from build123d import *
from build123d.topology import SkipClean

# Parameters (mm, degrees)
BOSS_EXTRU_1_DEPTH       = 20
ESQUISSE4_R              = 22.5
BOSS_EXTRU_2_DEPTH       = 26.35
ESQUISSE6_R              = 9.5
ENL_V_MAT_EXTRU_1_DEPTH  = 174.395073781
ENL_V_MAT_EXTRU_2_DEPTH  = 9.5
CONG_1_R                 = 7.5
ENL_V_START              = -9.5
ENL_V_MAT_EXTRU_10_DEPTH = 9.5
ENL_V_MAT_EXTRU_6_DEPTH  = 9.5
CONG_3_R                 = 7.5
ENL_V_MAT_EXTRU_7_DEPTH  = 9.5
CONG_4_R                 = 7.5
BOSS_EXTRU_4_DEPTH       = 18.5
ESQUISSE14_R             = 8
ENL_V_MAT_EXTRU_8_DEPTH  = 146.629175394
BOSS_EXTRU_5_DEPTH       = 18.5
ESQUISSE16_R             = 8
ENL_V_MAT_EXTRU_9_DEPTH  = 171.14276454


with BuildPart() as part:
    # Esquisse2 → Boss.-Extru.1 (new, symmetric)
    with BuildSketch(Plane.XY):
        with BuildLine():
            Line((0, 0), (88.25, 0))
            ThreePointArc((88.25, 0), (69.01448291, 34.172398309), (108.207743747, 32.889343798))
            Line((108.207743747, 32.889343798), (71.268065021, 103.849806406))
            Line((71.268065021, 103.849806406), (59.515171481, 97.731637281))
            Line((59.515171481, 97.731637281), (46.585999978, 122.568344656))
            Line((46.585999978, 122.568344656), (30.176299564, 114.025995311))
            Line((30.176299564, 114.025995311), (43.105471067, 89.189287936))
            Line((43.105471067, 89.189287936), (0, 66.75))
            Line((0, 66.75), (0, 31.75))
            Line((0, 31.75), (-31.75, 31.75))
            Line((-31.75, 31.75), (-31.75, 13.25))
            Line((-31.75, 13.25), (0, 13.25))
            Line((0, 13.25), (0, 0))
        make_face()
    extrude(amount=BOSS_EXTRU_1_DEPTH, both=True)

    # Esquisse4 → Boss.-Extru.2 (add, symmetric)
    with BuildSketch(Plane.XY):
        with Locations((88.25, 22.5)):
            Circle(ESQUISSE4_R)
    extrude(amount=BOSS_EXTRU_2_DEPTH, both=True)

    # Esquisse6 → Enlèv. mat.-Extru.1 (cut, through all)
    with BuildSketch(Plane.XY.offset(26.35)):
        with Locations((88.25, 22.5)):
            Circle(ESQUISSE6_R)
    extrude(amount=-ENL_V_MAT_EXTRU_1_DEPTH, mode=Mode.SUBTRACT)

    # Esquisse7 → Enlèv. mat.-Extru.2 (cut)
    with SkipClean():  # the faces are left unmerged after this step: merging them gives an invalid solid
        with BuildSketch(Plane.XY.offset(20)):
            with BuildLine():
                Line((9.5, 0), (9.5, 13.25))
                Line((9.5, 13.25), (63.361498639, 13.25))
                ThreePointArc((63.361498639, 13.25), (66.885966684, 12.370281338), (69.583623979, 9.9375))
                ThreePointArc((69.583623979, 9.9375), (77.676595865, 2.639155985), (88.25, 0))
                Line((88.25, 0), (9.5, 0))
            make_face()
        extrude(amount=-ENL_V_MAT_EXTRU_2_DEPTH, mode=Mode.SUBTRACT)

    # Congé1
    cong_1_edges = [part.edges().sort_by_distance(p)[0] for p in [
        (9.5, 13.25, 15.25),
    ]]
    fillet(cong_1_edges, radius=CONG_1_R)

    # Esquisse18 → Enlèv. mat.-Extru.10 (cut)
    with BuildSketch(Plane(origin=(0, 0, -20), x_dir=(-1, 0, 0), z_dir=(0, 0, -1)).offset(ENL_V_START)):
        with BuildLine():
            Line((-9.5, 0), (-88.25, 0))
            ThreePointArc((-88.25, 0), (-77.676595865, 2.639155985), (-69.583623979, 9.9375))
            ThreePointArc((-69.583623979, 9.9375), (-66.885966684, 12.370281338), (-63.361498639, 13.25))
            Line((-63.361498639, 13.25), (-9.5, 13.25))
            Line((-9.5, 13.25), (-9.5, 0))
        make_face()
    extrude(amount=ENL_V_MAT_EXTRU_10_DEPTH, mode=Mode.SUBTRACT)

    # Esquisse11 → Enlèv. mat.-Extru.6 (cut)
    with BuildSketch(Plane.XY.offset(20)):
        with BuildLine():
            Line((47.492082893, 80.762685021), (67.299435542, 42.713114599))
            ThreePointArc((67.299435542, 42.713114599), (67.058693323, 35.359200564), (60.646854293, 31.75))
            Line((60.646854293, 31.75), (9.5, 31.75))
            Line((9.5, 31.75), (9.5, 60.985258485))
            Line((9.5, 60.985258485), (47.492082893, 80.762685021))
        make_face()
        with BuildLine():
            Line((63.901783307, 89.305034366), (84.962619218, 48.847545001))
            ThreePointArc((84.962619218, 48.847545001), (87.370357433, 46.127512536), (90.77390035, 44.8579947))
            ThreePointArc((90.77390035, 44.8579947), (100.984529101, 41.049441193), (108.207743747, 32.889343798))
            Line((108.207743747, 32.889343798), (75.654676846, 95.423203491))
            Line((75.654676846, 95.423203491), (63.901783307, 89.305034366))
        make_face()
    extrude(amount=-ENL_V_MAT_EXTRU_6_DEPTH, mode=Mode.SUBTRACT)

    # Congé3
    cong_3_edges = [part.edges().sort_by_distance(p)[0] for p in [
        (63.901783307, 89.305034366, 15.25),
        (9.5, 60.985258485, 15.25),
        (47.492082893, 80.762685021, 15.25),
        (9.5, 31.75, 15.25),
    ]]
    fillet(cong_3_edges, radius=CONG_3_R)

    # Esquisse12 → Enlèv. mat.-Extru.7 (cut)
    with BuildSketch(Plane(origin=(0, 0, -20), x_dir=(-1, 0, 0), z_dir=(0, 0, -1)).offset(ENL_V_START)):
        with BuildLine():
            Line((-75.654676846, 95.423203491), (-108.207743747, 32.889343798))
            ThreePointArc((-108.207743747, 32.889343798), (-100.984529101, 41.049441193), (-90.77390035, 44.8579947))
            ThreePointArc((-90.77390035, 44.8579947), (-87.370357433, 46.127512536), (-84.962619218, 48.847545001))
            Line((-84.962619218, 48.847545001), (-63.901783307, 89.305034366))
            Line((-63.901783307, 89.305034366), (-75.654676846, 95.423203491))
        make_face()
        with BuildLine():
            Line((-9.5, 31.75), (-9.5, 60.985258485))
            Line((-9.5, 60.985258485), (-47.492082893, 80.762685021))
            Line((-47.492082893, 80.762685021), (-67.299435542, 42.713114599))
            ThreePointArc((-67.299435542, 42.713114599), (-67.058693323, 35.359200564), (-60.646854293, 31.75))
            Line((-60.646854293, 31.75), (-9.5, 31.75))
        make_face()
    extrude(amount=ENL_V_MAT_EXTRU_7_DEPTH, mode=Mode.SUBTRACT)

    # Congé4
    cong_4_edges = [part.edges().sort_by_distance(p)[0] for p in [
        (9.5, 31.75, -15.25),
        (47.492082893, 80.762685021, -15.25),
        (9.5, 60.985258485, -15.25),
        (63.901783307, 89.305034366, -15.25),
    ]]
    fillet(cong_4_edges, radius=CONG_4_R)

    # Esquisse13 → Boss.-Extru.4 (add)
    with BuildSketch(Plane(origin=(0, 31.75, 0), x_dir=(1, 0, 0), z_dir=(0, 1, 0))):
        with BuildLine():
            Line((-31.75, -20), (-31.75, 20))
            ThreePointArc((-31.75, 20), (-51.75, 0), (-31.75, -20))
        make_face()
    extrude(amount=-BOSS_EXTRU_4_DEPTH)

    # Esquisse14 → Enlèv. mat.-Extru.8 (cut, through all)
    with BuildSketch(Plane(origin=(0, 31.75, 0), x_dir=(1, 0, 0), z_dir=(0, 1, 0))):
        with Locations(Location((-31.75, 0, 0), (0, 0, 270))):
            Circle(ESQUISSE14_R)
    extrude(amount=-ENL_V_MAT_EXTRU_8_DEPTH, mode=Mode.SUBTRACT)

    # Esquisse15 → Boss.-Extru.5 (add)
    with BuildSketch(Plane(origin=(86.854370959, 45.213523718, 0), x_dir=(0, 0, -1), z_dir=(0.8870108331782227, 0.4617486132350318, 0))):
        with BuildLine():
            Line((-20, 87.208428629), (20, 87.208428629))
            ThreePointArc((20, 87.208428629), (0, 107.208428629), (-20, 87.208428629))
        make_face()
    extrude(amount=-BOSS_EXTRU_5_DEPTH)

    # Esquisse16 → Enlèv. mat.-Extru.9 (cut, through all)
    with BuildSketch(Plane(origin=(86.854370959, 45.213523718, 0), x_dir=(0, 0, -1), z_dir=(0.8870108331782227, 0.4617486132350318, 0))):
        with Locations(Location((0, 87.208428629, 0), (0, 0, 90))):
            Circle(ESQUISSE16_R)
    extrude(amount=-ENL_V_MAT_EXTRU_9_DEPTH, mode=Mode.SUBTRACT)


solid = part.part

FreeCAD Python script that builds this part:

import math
import FreeCAD as App
import Part
import Sketcher
from FreeCAD import Vector
Q = App.Units.Quantity


def edges_at(feature, points):
    """Names of the edges that pass closest to the given points."""
    edges = feature.Shape.Edges
    near = lambda p: min(range(len(edges)), key=lambda i: edges[i].distToShape(Part.Vertex(*p))[0])
    return sorted({f"Edge{near(p) + 1}" for p in points})

doc = App.newDocument("Part")
body = doc.addObject("PartDesign::Body", "Body")

sketch1 = body.newObject("Sketcher::SketchObject", "Sketch")
sketch1.AttachmentSupport = (doc.getObject("XY_Plane"), [""])
sketch1.MapMode = "FlatFace"
sketch1.addGeometry(Part.LineSegment(Vector(0, 0, 0), Vector(88, 0, 0)), False)
sketch1.addGeometry(Part.ArcOfCircle(Part.Circle(Vector(88, 22, 0), Vector(0, 0, 1), 22), math.radians(27), math.radians(270)), False)
sketch1.addGeometry(Part.LineSegment(Vector(108, 33, 0), Vector(71, 104, 0)), False)
sketch1.addGeometry(Part.LineSegment(Vector(71, 104, 0), Vector(60, 98, 0)), False)
sketch1.addGeometry(Part.LineSegment(Vector(60, 98, 0), Vector(47, 123, 0)), False)
sketch1.addGeometry(Part.LineSegment(Vector(47, 123, 0), Vector(30, 114, 0)), False)
sketch1.addGeometry(Part.LineSegment(Vector(30, 114, 0), Vector(43, 89, 0)), False)
sketch1.addGeometry(Part.LineSegment(Vector(43, 89, 0), Vector(0, 67, 0)), False)
sketch1.addGeometry(Part.LineSegment(Vector(0, 67, 0), Vector(0, 32, 0)), False)
sketch1.addGeometry(Part.LineSegment(Vector(0, 32, 0), Vector(-32, 32, 0)), False)
sketch1.addGeometry(Part.LineSegment(Vector(-32, 32, 0), Vector(-32, 13, 0)), False)
sketch1.addGeometry(Part.LineSegment(Vector(-32, 13, 0), Vector(0, 13, 0)), False)
sketch1.addGeometry(Part.LineSegment(Vector(0, 13, 0), Vector(0, 0, 0)), False)
sketch1.addConstraint(Sketcher.Constraint("Tangent", 0, 2, 1, 2))
sketch1.addConstraint(Sketcher.Constraint("Tangent", 1, 1, 2, 1))
sketch1.addConstraint(Sketcher.Constraint("Coincident", 2, 2, 3, 1))
sketch1.addConstraint(Sketcher.Constraint("Coincident", 3, 2, 4, 1))
sketch1.addConstraint(Sketcher.Constraint("Coincident", 4, 2, 5, 1))
sketch1.addConstraint(Sketcher.Constraint("Coincident", 5, 2, 6, 1))
sketch1.addConstraint(Sketcher.Constraint("Coincident", 6, 2, 7, 1))
sketch1.addConstraint(Sketcher.Constraint("Coincident", 7, 2, 8, 1))
sketch1.addConstraint(Sketcher.Constraint("Coincident", 8, 2, 9, 1))
sketch1.addConstraint(Sketcher.Constraint("Coincident", 9, 2, 10, 1))
sketch1.addConstraint(Sketcher.Constraint("Coincident", 10, 2, 11, 1))
sketch1.addConstraint(Sketcher.Constraint("Coincident", 11, 2, 12, 1))
sketch1.addConstraint(Sketcher.Constraint("Coincident", 12, 2, 0, 1))
sketch1.addConstraint(Sketcher.Constraint("Horizontal", 0))
sketch1.addConstraint(Sketcher.Constraint("Vertical", 8))
sketch1.addConstraint(Sketcher.Constraint("Horizontal", 9))
sketch1.addConstraint(Sketcher.Constraint("Vertical", 10))
sketch1.addConstraint(Sketcher.Constraint("Horizontal", 11))
sketch1.addConstraint(Sketcher.Constraint("Vertical", 12))
sketch1.addConstraint(Sketcher.Constraint("Coincident", 12, 2, -1, 1))
sketch1.addConstraint(Sketcher.Constraint("PointOnObject", 7, 2, -2))
sketch1.addConstraint(Sketcher.Constraint("Perpendicular", 2, 3))
sketch1.addConstraint(Sketcher.Constraint("Perpendicular", 3, 4))
sketch1.addConstraint(Sketcher.Constraint("Perpendicular", 4, 5))
sketch1.addConstraint(Sketcher.Constraint("Perpendicular", 5, 6))
sketch1.addConstraint(Sketcher.Constraint("Perpendicular", 6, 7))
sketch1.addConstraint(Sketcher.Constraint("Equal", 4, 6))
sketch1.addConstraint(Sketcher.Constraint("Radius", 1, Q("22.5 mm")))
sketch1.addConstraint(Sketcher.Constraint("DistanceY", 8, 2, 8, 1, Q("35 mm")))
sketch1.addConstraint(Sketcher.Constraint("DistanceY", 10, 2, 10, 1, Q("18.5 mm")))
sketch1.addConstraint(Sketcher.Constraint("Angle", 2, Q("117.5 deg")))
sketch1.addConstraint(Sketcher.Constraint("Distance", 5, Q("18.5 mm")))
sketch1.addConstraint(Sketcher.Constraint("DistanceX", 0, 1, 0, 2, Q("88.25 mm")))
sketch1.addConstraint(Sketcher.Constraint("DistanceX", 9, 2, 9, 1, Q("31.75 mm")))
sketch1.addConstraint(Sketcher.Constraint("DistanceY", 12, 2, 12, 1, Q("13.25 mm")))
sketch1.addConstraint(Sketcher.Constraint("Distance", 3, Q("13.25 mm")))
sketch1.addConstraint(Sketcher.Constraint("DistanceX", -1, 1, 4, 2, Q("46.586 mm")))
pad1 = body.newObject("PartDesign::Pad", "Pad")
pad1.Profile = sketch1
pad1.Length = 40
pad1.Midplane = True

sketch2 = body.newObject("Sketcher::SketchObject", "Sketch001")
sketch2.AttachmentSupport = (doc.getObject("XY_Plane"), [""])
sketch2.MapMode = "FlatFace"
sketch2.addGeometry(Part.Circle(Vector(88, 22, 0), Vector(0, 0, 1), 22), False)
sketch2.addConstraint(Sketcher.Constraint("Diameter", 0, Q("45 mm")))
sketch2.addConstraint(Sketcher.Constraint("DistanceY", -1, 1, 0, 3, Q("22.5 mm")))
sketch2.addConstraint(Sketcher.Constraint("DistanceX", -1, 1, 0, 3, Q("88.25 mm")))
pad2 = body.newObject("PartDesign::Pad", "Pad001")
pad2.Profile = sketch2
pad2.Length = 52.7
pad2.Midplane = True

sketch3 = body.newObject("Sketcher::SketchObject", "Sketch002")
sketch3.AttachmentSupport = (doc.getObject("XY_Plane"), [""])
sketch3.MapMode = "FlatFace"
sketch3.AttachmentOffset = App.Placement(Vector(0, 0, 26.35), App.Rotation())
sketch3.addGeometry(Part.Circle(Vector(88, 22, 0), Vector(0, 0, 1), 10), False)
sketch3.addConstraint(Sketcher.Constraint("Diameter", 0, Q("19 mm")))
sketch3.addConstraint(Sketcher.Constraint("DistanceY", -1, 1, 0, 3, Q("22.5 mm")))
sketch3.addConstraint(Sketcher.Constraint("DistanceX", -1, 1, 0, 3, Q("88.25 mm")))
pocket1 = body.newObject("PartDesign::Pocket", "Pocket")
pocket1.Profile = sketch3
pocket1.Type = "ThroughAll"

sketch4 = body.newObject("Sketcher::SketchObject", "Sketch003")
sketch4.AttachmentSupport = (doc.getObject("XY_Plane"), [""])
sketch4.MapMode = "FlatFace"
sketch4.AttachmentOffset = App.Placement(Vector(0, 0, 20), App.Rotation())
sketch4.addGeometry(Part.LineSegment(Vector(10, 13, 0), Vector(10, 0, 0)), False)
sketch4.addGeometry(Part.LineSegment(Vector(10, 0, 0), Vector(88, 0, 0)), False)
sketch4.addGeometry(Part.ArcOfCircle(Part.Circle(Vector(88, 23, 0), Vector(0, 0, 1), 23), math.radians(-146), math.radians(-90)), False)
sketch4.addGeometry(Part.ArcOfCircle(Part.Circle(Vector(63, 6, 0), Vector(0, 0, 1), 8), math.radians(34), math.radians(90)), False)
sketch4.addGeometry(Part.LineSegment(Vector(63, 13, 0), Vector(10, 13, 0)), False)
sketch4.addConstraint(Sketcher.Constraint("Coincident", 0, 2, 1, 1))
sketch4.addConstraint(Sketcher.Constraint("Tangent", 1, 2, 2, 2))
sketch4.addConstraint(Sketcher.Constraint("Tangent", 2, 1, 3, 1))
sketch4.addConstraint(Sketcher.Constraint("Tangent", 3, 2, 4, 1))
sketch4.addConstraint(Sketcher.Constraint("Coincident", 4, 2, 0, 1))
sketch4.addConstraint(Sketcher.Constraint("Vertical", 0))
sketch4.addConstraint(Sketcher.Constraint("Horizontal", 1))
sketch4.addConstraint(Sketcher.Constraint("Horizontal", 4))
sketch4.addConstraint(Sketcher.Constraint("PointOnObject", 0, 2, -1))
sketch4.addConstraint(Sketcher.Constraint("Radius", 2, Q("22.5 mm")))
sketch4.addConstraint(Sketcher.Constraint("Radius", 3, Q("7.5 mm")))
sketch4.addConstraint(Sketcher.Constraint("DistanceX", 1, 1, 1, 2, Q("78.75 mm")))
sketch4.addConstraint(Sketcher.Constraint("DistanceY", 0, 2, 0, 1, Q("13.25 mm")))
sketch4.addConstraint(Sketcher.Constraint("DistanceX", -1, 1, 0, 2, Q("9.5 mm")))
pocket2 = body.newObject("PartDesign::Pocket", "Pocket001")
pocket2.Profile = sketch4
pocket2.Length = 9.5
doc.recompute()

fillet = body.newObject("PartDesign::Fillet", "Fillet")
fillet.Base = (pocket2, edges_at(pocket2, [(9.5, 13.25, 15.25)]))
fillet.Radius = 7.5

sketch5 = body.newObject("Sketcher::SketchObject", "Sketch004")
sketch5.AttachmentSupport = (doc.getObject("XY_Plane"), [""])
sketch5.MapMode = "FlatFace"
sketch5.AttachmentOffset = App.Placement(Vector(0, 0, -10.5), App.Rotation())
sketch5.addGeometry(Part.LineSegment(Vector(88, 0, 0), Vector(10, 0, 0)), False)
sketch5.addGeometry(Part.LineSegment(Vector(10, 0, 0), Vector(10, 13, 0)), False)
sketch5.addGeometry(Part.LineSegment(Vector(10, 13, 0), Vector(63, 13, 0)), False)
sketch5.addGeometry(Part.ArcOfCircle(Part.Circle(Vector(63, 6, 0), Vector(0, 0, 1), 8), math.radians(34), math.radians(90)), False)
sketch5.addGeometry(Part.ArcOfCircle(Part.Circle(Vector(88, 23, 0), Vector(0, 0, 1), 23), math.radians(-146), math.radians(-90)), False)
sketch5.addConstraint(Sketcher.Constraint("Coincident", 0, 2, 1, 1))
sketch5.addConstraint(Sketcher.Constraint("Coincident", 1, 2, 2, 1))
sketch5.addConstraint(Sketcher.Constraint("Tangent", 2, 2, 3, 2))
sketch5.addConstraint(Sketcher.Constraint("Tangent", 3, 1, 4, 1))
sketch5.addConstraint(Sketcher.Constraint("Tangent", 4, 2, 0, 1))
sketch5.addConstraint(Sketcher.Constraint("Horizontal", 0))
sketch5.addConstraint(Sketcher.Constraint("Vertical", 1))
sketch5.addConstraint(Sketcher.Constraint("Horizontal", 2))
sketch5.addConstraint(Sketcher.Constraint("PointOnObject", 0, 2, -1))
sketch5.addConstraint(Sketcher.Constraint("Radius", 3, Q("7.5 mm")))
sketch5.addConstraint(Sketcher.Constraint("Radius", 4, Q("22.5 mm")))
sketch5.addConstraint(Sketcher.Constraint("DistanceX", 0, 2, 0, 1, Q("78.75 mm")))
sketch5.addConstraint(Sketcher.Constraint("DistanceY", 1, 1, 1, 2, Q("13.25 mm")))
sketch5.addConstraint(Sketcher.Constraint("DistanceX", -1, 1, 0, 2, Q("9.5 mm")))
pocket3 = body.newObject("PartDesign::Pocket", "Pocket002")
pocket3.Profile = sketch5
pocket3.Length = 9.5

sketch6 = body.newObject("Sketcher::SketchObject", "Sketch005")
sketch6.AttachmentSupport = (doc.getObject("XY_Plane"), [""])
sketch6.MapMode = "FlatFace"
sketch6.AttachmentOffset = App.Placement(Vector(0, 0, 20), App.Rotation())
sketch6.addGeometry(Part.LineSegment(Vector(67, 43, 0), Vector(47, 81, 0)), False)
sketch6.addGeometry(Part.LineSegment(Vector(47, 81, 0), Vector(10, 61, 0)), False)
sketch6.addGeometry(Part.LineSegment(Vector(10, 61, 0), Vector(10, 32, 0)), False)
sketch6.addGeometry(Part.LineSegment(Vector(10, 32, 0), Vector(61, 32, 0)), False)
sketch6.addGeometry(Part.ArcOfCircle(Part.Circle(Vector(61, 39, 0), Vector(0, 0, 1), 8), math.radians(-90), math.radians(27)), False)
sketch6.addGeometry(Part.LineSegment(Vector(64, 89, 0), Vector(85, 49, 0)), False)
sketch6.addGeometry(Part.ArcOfCircle(Part.Circle(Vector(92, 52, 0), Vector(0, 0, 1), 8), math.radians(-152), math.radians(-96)), False)
sketch6.addGeometry(Part.ArcOfCircle(Part.Circle(Vector(88, 22, 0), Vector(0, 0, 1), 23), math.radians(28), math.radians(84)), False)
sketch6.addGeometry(Part.LineSegment(Vector(108, 33, 0), Vector(76, 95, 0)), False)
sketch6.addGeometry(Part.LineSegment(Vector(76, 95, 0), Vector(64, 89, 0)), False)
sketch6.addConstraint(Sketcher.Constraint("Coincident", 0, 2, 1, 1))
sketch6.addConstraint(Sketcher.Constraint("Coincident", 1, 2, 2, 1))
sketch6.addConstraint(Sketcher.Constraint("Coincident", 2, 2, 3, 1))
sketch6.addConstraint(Sketcher.Constraint("Tangent", 3, 2, 4, 1))
sketch6.addConstraint(Sketcher.Constraint("Tangent", 4, 2, 0, 1))
sketch6.addConstraint(Sketcher.Constraint("Tangent", 5, 2, 6, 1))
sketch6.addConstraint(Sketcher.Constraint("Tangent", 6, 2, 7, 2))
sketch6.addConstraint(Sketcher.Constraint("Tangent", 7, 1, 8, 1))
sketch6.addConstraint(Sketcher.Constraint("Coincident", 8, 2, 9, 1))
sketch6.addConstraint(Sketcher.Constraint("Coincident", 9, 2, 5, 1))
sketch6.addConstraint(Sketcher.Constraint("Vertical", 2))
sketch6.addConstraint(Sketcher.Constraint("Horizontal", 3))
sketch6.addConstraint(Sketcher.Constraint("Equal", 4, 6))
sketch6.addConstraint(Sketcher.Constraint("Perpendicular", 0, 1))
sketch6.addConstraint(Sketcher.Constraint("Perpendicular", 1, 5))
sketch6.addConstraint(Sketcher.Constraint("Parallel", 5, 8))
sketch6.addConstraint(Sketcher.Constraint("Perpendicular", 8, 9))
sketch6.addConstraint(Sketcher.Constraint("Radius", 4, Q("7.5 mm")))
sketch6.addConstraint(Sketcher.Constraint("Radius", 7, Q("22.5 mm")))
sketch6.addConstraint(Sketcher.Constraint("Angle", 0, Q("117.5 deg")))
sketch6.addConstraint(Sketcher.Constraint("DistanceY", -1, 1, 7, 3, Q("22.5 mm")))
sketch6.addConstraint(Sketcher.Constraint("DistanceX", -1, 1, 1, 2, Q("9.5 mm")))
sketch6.addConstraint(Sketcher.Constraint("Distance", 9, Q("13.25 mm")))
sketch6.addConstraint(Sketcher.Constraint("DistanceY", -1, 1, 4, 3, Q("39.25 mm")))
sketch6.addConstraint(Sketcher.Constraint("DistanceX", -1, 1, 7, 3, Q("88.25 mm")))
sketch6.addConstraint(Sketcher.Constraint("Distance", 0, Q("42.896399 mm")))
sketch6.addConstraint(Sketcher.Constraint("DistanceY", 2, 2, 2, 1, Q("29.235258 mm")))
sketch6.addConstraint(Sketcher.Constraint("DistanceX", 0, 2, 9, 2, Q("16.4097 mm")))
pocket4 = body.newObject("PartDesign::Pocket", "Pocket003")
pocket4.Profile = sketch6
pocket4.Length = 9.5
doc.recompute()

fillet2 = body.newObject("PartDesign::Fillet", "Fillet001")
fillet2.Base = (pocket4, edges_at(pocket4, [
    (63.902, 89.305, 15.25),
    (9.5, 60.985, 15.25),
    (47.492, 80.763, 15.25),
    (9.5, 31.75, 15.25),
]))
fillet2.Radius = 7.5

sketch7 = body.newObject("Sketcher::SketchObject", "Sketch006")
sketch7.AttachmentSupport = (doc.getObject("XY_Plane"), [""])
sketch7.MapMode = "FlatFace"
sketch7.AttachmentOffset = App.Placement(Vector(0, 0, -10.5), App.Rotation())
sketch7.addGeometry(Part.LineSegment(Vector(76, 95, 0), Vector(108, 33, 0)), False)
sketch7.addGeometry(Part.ArcOfCircle(Part.Circle(Vector(88, 22, 0), Vector(0, 0, 1), 23), math.radians(28), math.radians(84)), False)
sketch7.addGeometry(Part.ArcOfCircle(Part.Circle(Vector(92, 52, 0), Vector(0, 0, 1), 8), math.radians(-152), math.radians(-96)), False)
sketch7.addGeometry(Part.LineSegment(Vector(85, 49, 0), Vector(64, 89, 0)), False)
sketch7.addGeometry(Part.LineSegment(Vector(64, 89, 0), Vector(76, 95, 0)), False)
sketch7.addGeometry(Part.LineSegment(Vector(10, 32, 0), Vector(10, 61, 0)), False)
sketch7.addGeometry(Part.LineSegment(Vector(10, 61, 0), Vector(47, 81, 0)), False)
sketch7.addGeometry(Part.LineSegment(Vector(47, 81, 0), Vector(67, 43, 0)), False)
sketch7.addGeometry(Part.ArcOfCircle(Part.Circle(Vector(61, 39, 0), Vector(0, 0, 1), 8), math.radians(-90), math.radians(27)), False)
sketch7.addGeometry(Part.LineSegment(Vector(61, 32, 0), Vector(10, 32, 0)), False)
sketch7.addConstraint(Sketcher.Constraint("Tangent", 0, 2, 1, 1))
sketch7.addConstraint(Sketcher.Constraint("Tangent", 1, 2, 2, 2))
sketch7.addConstraint(Sketcher.Constraint("Tangent", 2, 1, 3, 1))
sketch7.addConstraint(Sketcher.Constraint("Coincident", 3, 2, 4, 1))
sketch7.addConstraint(Sketcher.Constraint("Coincident", 4, 2, 0, 1))
sketch7.addConstraint(Sketcher.Constraint("Coincident", 5, 2, 6, 1))
sketch7.addConstraint(Sketcher.Constraint("Coincident", 6, 2, 7, 1))
sketch7.addConstraint(Sketcher.Constraint("Tangent", 7, 2, 8, 2))
sketch7.addConstraint(Sketcher.Constraint("Tangent", 8, 1, 9, 1))
sketch7.addConstraint(Sketcher.Constraint("Coincident", 9, 2, 5, 1))
sketch7.addConstraint(Sketcher.Constraint("Vertical", 5))
sketch7.addConstraint(Sketcher.Constraint("Horizontal", 9))
sketch7.addConstraint(Sketcher.Constraint("Equal", 2, 8))
sketch7.addConstraint(Sketcher.Constraint("Parallel", 0, 3))
sketch7.addConstraint(Sketcher.Constraint("Perpendicular", 3, 4))
sketch7.addConstraint(Sketcher.Constraint("Parallel", 4, 6))
sketch7.addConstraint(Sketcher.Constraint("Perpendicular", 6, 7))
sketch7.addConstraint(Sketcher.Constraint("Radius", 1, Q("22.5 mm")))
sketch7.addConstraint(Sketcher.Constraint("Radius", 2, Q("7.5 mm")))
sketch7.addConstraint(Sketcher.Constraint("Angle", 0, Q("-62.5 deg")))
sketch7.addConstraint(Sketcher.Constraint("DistanceY", -1, 1, 1, 3, Q("22.5 mm")))
sketch7.addConstraint(Sketcher.Constraint("DistanceX", -1, 1, 5, 2, Q("9.5 mm")))
sketch7.addConstraint(Sketcher.Constraint("Distance", 4, Q("13.25 mm")))
sketch7.addConstraint(Sketcher.Constraint("DistanceX", -1, 1, 1, 3, Q("88.25 mm")))
sketch7.addConstraint(Sketcher.Constraint("DistanceY", -1, 1, 8, 3, Q("39.25 mm")))
sketch7.addConstraint(Sketcher.Constraint("Distance", 7, Q("42.896399 mm")))
sketch7.addConstraint(Sketcher.Constraint("DistanceY", 5, 1, 5, 2, Q("29.235258 mm")))
sketch7.addConstraint(Sketcher.Constraint("DistanceX", 6, 2, 3, 2, Q("16.4097 mm")))
pocket5 = body.newObject("PartDesign::Pocket", "Pocket004")
pocket5.Profile = sketch7
pocket5.Length = 9.5
doc.recompute()

fillet3 = body.newObject("PartDesign::Fillet", "Fillet002")
fillet3.Base = (pocket5, edges_at(pocket5, [
    (9.5, 31.75, -15.25),
    (47.492, 80.763, -15.25),
    (9.5, 60.985, -15.25),
    (63.902, 89.305, -15.25),
]))
fillet3.Radius = 7.5

sketch8 = body.newObject("Sketcher::SketchObject", "Sketch007")
sketch8.AttachmentSupport = (doc.getObject("XZ_Plane"), [""])
sketch8.MapMode = "FlatFace"
sketch8.AttachmentOffset = App.Placement(Vector(0, 0, -31.75), App.Rotation())
sketch8.addGeometry(Part.LineSegment(Vector(-32, 20, 0), Vector(-32, -20, 0)), False)
sketch8.addGeometry(Part.ArcOfCircle(Part.Circle(Vector(-32, 0, 0), Vector(0, 0, 1), 20), math.radians(90), math.radians(270)), False)
sketch8.addConstraint(Sketcher.Constraint("Coincident", 0, 1, 1, 1))
sketch8.addConstraint(Sketcher.Constraint("Coincident", 1, 2, 0, 2))
sketch8.addConstraint(Sketcher.Constraint("Vertical", 0))
sketch8.addConstraint(Sketcher.Constraint("PointOnObject", 1, 3, -1))
sketch8.addConstraint(Sketcher.Constraint("Vertical", 1, 3, 0, 1))
sketch8.addConstraint(Sketcher.Constraint("Radius", 1, Q("20 mm")))
sketch8.addConstraint(Sketcher.Constraint("DistanceX", 1, 3, -1, 1, Q("31.75 mm")))
pad3 = body.newObject("PartDesign::Pad", "Pad002")
pad3.Profile = sketch8
pad3.Length = 18.5

sketch9 = body.newObject("Sketcher::SketchObject", "Sketch008")
sketch9.AttachmentSupport = (doc.getObject("XZ_Plane"), [""])
sketch9.MapMode = "FlatFace"
sketch9.AttachmentOffset = App.Placement(Vector(0, 0, -31.75), App.Rotation())
sketch9.addGeometry(Part.Circle(Vector(-32, 0, 0), Vector(0, 0, 1), 8), False)
sketch9.addConstraint(Sketcher.Constraint("PointOnObject", 0, 3, -1))
sketch9.addConstraint(Sketcher.Constraint("Diameter", 0, Q("16 mm")))
sketch9.addConstraint(Sketcher.Constraint("DistanceX", 0, 3, -1, 1, Q("31.75 mm")))
pocket6 = body.newObject("PartDesign::Pocket", "Pocket005")
pocket6.Profile = sketch9
pocket6.Type = "ThroughAll"
pocket6.Reversed = True

sketch10 = body.newObject("Sketcher::SketchObject", "Sketch009")
sketch10.Placement = App.Placement(Vector(86.854371, 45.213524, 0), App.Rotation(Vector(0, 0, -1), Vector(-0.461748613, 0.887010833, 0), Vector(0.887010833, 0.461748613, 0), "ZXY"))
sketch10.addGeometry(Part.LineSegment(Vector(-20, 87, 0), Vector(20, 87, 0)), False)
sketch10.addGeometry(Part.ArcOfCircle(Part.Circle(Vector(0, 87, 0), Vector(0, 0, 1), 20), math.radians(0), math.radians(180)), False)
sketch10.addConstraint(Sketcher.Constraint("Coincident", 0, 1, 1, 2))
sketch10.addConstraint(Sketcher.Constraint("Coincident", 1, 1, 0, 2))
sketch10.addConstraint(Sketcher.Constraint("Horizontal", 0))
sketch10.addConstraint(Sketcher.Constraint("PointOnObject", 1, 3, -2))
sketch10.addConstraint(Sketcher.Constraint("Horizontal", 1, 3, 0, 1))
sketch10.addConstraint(Sketcher.Constraint("Radius", 1, Q("20 mm")))
sketch10.addConstraint(Sketcher.Constraint("DistanceY", -1, 1, 1, 3, Q("87.208429 mm")))
pad4 = body.newObject("PartDesign::Pad", "Pad003")
pad4.Profile = sketch10
pad4.Length = 18.5
pad4.Reversed = True

sketch11 = body.newObject("Sketcher::SketchObject", "Sketch010")
sketch11.Placement = App.Placement(Vector(86.854371, 45.213524, 0), App.Rotation(Vector(0, 0, -1), Vector(-0.461748613, 0.887010833, 0), Vector(0.887010833, 0.461748613, 0), "ZXY"))
sketch11.addGeometry(Part.Circle(Vector(0, 87, 0), Vector(0, 0, 1), 8), False)
sketch11.addConstraint(Sketcher.Constraint("PointOnObject", 0, 3, -2))
sketch11.addConstraint(Sketcher.Constraint("Diameter", 0, Q("16 mm")))
sketch11.addConstraint(Sketcher.Constraint("DistanceY", -1, 1, 0, 3, Q("87.208429 mm")))
pocket7 = body.newObject("PartDesign::Pocket", "Pocket006")
pocket7.Profile = sketch11
pocket7.Type = "ThroughAll"

doc.recompute()
